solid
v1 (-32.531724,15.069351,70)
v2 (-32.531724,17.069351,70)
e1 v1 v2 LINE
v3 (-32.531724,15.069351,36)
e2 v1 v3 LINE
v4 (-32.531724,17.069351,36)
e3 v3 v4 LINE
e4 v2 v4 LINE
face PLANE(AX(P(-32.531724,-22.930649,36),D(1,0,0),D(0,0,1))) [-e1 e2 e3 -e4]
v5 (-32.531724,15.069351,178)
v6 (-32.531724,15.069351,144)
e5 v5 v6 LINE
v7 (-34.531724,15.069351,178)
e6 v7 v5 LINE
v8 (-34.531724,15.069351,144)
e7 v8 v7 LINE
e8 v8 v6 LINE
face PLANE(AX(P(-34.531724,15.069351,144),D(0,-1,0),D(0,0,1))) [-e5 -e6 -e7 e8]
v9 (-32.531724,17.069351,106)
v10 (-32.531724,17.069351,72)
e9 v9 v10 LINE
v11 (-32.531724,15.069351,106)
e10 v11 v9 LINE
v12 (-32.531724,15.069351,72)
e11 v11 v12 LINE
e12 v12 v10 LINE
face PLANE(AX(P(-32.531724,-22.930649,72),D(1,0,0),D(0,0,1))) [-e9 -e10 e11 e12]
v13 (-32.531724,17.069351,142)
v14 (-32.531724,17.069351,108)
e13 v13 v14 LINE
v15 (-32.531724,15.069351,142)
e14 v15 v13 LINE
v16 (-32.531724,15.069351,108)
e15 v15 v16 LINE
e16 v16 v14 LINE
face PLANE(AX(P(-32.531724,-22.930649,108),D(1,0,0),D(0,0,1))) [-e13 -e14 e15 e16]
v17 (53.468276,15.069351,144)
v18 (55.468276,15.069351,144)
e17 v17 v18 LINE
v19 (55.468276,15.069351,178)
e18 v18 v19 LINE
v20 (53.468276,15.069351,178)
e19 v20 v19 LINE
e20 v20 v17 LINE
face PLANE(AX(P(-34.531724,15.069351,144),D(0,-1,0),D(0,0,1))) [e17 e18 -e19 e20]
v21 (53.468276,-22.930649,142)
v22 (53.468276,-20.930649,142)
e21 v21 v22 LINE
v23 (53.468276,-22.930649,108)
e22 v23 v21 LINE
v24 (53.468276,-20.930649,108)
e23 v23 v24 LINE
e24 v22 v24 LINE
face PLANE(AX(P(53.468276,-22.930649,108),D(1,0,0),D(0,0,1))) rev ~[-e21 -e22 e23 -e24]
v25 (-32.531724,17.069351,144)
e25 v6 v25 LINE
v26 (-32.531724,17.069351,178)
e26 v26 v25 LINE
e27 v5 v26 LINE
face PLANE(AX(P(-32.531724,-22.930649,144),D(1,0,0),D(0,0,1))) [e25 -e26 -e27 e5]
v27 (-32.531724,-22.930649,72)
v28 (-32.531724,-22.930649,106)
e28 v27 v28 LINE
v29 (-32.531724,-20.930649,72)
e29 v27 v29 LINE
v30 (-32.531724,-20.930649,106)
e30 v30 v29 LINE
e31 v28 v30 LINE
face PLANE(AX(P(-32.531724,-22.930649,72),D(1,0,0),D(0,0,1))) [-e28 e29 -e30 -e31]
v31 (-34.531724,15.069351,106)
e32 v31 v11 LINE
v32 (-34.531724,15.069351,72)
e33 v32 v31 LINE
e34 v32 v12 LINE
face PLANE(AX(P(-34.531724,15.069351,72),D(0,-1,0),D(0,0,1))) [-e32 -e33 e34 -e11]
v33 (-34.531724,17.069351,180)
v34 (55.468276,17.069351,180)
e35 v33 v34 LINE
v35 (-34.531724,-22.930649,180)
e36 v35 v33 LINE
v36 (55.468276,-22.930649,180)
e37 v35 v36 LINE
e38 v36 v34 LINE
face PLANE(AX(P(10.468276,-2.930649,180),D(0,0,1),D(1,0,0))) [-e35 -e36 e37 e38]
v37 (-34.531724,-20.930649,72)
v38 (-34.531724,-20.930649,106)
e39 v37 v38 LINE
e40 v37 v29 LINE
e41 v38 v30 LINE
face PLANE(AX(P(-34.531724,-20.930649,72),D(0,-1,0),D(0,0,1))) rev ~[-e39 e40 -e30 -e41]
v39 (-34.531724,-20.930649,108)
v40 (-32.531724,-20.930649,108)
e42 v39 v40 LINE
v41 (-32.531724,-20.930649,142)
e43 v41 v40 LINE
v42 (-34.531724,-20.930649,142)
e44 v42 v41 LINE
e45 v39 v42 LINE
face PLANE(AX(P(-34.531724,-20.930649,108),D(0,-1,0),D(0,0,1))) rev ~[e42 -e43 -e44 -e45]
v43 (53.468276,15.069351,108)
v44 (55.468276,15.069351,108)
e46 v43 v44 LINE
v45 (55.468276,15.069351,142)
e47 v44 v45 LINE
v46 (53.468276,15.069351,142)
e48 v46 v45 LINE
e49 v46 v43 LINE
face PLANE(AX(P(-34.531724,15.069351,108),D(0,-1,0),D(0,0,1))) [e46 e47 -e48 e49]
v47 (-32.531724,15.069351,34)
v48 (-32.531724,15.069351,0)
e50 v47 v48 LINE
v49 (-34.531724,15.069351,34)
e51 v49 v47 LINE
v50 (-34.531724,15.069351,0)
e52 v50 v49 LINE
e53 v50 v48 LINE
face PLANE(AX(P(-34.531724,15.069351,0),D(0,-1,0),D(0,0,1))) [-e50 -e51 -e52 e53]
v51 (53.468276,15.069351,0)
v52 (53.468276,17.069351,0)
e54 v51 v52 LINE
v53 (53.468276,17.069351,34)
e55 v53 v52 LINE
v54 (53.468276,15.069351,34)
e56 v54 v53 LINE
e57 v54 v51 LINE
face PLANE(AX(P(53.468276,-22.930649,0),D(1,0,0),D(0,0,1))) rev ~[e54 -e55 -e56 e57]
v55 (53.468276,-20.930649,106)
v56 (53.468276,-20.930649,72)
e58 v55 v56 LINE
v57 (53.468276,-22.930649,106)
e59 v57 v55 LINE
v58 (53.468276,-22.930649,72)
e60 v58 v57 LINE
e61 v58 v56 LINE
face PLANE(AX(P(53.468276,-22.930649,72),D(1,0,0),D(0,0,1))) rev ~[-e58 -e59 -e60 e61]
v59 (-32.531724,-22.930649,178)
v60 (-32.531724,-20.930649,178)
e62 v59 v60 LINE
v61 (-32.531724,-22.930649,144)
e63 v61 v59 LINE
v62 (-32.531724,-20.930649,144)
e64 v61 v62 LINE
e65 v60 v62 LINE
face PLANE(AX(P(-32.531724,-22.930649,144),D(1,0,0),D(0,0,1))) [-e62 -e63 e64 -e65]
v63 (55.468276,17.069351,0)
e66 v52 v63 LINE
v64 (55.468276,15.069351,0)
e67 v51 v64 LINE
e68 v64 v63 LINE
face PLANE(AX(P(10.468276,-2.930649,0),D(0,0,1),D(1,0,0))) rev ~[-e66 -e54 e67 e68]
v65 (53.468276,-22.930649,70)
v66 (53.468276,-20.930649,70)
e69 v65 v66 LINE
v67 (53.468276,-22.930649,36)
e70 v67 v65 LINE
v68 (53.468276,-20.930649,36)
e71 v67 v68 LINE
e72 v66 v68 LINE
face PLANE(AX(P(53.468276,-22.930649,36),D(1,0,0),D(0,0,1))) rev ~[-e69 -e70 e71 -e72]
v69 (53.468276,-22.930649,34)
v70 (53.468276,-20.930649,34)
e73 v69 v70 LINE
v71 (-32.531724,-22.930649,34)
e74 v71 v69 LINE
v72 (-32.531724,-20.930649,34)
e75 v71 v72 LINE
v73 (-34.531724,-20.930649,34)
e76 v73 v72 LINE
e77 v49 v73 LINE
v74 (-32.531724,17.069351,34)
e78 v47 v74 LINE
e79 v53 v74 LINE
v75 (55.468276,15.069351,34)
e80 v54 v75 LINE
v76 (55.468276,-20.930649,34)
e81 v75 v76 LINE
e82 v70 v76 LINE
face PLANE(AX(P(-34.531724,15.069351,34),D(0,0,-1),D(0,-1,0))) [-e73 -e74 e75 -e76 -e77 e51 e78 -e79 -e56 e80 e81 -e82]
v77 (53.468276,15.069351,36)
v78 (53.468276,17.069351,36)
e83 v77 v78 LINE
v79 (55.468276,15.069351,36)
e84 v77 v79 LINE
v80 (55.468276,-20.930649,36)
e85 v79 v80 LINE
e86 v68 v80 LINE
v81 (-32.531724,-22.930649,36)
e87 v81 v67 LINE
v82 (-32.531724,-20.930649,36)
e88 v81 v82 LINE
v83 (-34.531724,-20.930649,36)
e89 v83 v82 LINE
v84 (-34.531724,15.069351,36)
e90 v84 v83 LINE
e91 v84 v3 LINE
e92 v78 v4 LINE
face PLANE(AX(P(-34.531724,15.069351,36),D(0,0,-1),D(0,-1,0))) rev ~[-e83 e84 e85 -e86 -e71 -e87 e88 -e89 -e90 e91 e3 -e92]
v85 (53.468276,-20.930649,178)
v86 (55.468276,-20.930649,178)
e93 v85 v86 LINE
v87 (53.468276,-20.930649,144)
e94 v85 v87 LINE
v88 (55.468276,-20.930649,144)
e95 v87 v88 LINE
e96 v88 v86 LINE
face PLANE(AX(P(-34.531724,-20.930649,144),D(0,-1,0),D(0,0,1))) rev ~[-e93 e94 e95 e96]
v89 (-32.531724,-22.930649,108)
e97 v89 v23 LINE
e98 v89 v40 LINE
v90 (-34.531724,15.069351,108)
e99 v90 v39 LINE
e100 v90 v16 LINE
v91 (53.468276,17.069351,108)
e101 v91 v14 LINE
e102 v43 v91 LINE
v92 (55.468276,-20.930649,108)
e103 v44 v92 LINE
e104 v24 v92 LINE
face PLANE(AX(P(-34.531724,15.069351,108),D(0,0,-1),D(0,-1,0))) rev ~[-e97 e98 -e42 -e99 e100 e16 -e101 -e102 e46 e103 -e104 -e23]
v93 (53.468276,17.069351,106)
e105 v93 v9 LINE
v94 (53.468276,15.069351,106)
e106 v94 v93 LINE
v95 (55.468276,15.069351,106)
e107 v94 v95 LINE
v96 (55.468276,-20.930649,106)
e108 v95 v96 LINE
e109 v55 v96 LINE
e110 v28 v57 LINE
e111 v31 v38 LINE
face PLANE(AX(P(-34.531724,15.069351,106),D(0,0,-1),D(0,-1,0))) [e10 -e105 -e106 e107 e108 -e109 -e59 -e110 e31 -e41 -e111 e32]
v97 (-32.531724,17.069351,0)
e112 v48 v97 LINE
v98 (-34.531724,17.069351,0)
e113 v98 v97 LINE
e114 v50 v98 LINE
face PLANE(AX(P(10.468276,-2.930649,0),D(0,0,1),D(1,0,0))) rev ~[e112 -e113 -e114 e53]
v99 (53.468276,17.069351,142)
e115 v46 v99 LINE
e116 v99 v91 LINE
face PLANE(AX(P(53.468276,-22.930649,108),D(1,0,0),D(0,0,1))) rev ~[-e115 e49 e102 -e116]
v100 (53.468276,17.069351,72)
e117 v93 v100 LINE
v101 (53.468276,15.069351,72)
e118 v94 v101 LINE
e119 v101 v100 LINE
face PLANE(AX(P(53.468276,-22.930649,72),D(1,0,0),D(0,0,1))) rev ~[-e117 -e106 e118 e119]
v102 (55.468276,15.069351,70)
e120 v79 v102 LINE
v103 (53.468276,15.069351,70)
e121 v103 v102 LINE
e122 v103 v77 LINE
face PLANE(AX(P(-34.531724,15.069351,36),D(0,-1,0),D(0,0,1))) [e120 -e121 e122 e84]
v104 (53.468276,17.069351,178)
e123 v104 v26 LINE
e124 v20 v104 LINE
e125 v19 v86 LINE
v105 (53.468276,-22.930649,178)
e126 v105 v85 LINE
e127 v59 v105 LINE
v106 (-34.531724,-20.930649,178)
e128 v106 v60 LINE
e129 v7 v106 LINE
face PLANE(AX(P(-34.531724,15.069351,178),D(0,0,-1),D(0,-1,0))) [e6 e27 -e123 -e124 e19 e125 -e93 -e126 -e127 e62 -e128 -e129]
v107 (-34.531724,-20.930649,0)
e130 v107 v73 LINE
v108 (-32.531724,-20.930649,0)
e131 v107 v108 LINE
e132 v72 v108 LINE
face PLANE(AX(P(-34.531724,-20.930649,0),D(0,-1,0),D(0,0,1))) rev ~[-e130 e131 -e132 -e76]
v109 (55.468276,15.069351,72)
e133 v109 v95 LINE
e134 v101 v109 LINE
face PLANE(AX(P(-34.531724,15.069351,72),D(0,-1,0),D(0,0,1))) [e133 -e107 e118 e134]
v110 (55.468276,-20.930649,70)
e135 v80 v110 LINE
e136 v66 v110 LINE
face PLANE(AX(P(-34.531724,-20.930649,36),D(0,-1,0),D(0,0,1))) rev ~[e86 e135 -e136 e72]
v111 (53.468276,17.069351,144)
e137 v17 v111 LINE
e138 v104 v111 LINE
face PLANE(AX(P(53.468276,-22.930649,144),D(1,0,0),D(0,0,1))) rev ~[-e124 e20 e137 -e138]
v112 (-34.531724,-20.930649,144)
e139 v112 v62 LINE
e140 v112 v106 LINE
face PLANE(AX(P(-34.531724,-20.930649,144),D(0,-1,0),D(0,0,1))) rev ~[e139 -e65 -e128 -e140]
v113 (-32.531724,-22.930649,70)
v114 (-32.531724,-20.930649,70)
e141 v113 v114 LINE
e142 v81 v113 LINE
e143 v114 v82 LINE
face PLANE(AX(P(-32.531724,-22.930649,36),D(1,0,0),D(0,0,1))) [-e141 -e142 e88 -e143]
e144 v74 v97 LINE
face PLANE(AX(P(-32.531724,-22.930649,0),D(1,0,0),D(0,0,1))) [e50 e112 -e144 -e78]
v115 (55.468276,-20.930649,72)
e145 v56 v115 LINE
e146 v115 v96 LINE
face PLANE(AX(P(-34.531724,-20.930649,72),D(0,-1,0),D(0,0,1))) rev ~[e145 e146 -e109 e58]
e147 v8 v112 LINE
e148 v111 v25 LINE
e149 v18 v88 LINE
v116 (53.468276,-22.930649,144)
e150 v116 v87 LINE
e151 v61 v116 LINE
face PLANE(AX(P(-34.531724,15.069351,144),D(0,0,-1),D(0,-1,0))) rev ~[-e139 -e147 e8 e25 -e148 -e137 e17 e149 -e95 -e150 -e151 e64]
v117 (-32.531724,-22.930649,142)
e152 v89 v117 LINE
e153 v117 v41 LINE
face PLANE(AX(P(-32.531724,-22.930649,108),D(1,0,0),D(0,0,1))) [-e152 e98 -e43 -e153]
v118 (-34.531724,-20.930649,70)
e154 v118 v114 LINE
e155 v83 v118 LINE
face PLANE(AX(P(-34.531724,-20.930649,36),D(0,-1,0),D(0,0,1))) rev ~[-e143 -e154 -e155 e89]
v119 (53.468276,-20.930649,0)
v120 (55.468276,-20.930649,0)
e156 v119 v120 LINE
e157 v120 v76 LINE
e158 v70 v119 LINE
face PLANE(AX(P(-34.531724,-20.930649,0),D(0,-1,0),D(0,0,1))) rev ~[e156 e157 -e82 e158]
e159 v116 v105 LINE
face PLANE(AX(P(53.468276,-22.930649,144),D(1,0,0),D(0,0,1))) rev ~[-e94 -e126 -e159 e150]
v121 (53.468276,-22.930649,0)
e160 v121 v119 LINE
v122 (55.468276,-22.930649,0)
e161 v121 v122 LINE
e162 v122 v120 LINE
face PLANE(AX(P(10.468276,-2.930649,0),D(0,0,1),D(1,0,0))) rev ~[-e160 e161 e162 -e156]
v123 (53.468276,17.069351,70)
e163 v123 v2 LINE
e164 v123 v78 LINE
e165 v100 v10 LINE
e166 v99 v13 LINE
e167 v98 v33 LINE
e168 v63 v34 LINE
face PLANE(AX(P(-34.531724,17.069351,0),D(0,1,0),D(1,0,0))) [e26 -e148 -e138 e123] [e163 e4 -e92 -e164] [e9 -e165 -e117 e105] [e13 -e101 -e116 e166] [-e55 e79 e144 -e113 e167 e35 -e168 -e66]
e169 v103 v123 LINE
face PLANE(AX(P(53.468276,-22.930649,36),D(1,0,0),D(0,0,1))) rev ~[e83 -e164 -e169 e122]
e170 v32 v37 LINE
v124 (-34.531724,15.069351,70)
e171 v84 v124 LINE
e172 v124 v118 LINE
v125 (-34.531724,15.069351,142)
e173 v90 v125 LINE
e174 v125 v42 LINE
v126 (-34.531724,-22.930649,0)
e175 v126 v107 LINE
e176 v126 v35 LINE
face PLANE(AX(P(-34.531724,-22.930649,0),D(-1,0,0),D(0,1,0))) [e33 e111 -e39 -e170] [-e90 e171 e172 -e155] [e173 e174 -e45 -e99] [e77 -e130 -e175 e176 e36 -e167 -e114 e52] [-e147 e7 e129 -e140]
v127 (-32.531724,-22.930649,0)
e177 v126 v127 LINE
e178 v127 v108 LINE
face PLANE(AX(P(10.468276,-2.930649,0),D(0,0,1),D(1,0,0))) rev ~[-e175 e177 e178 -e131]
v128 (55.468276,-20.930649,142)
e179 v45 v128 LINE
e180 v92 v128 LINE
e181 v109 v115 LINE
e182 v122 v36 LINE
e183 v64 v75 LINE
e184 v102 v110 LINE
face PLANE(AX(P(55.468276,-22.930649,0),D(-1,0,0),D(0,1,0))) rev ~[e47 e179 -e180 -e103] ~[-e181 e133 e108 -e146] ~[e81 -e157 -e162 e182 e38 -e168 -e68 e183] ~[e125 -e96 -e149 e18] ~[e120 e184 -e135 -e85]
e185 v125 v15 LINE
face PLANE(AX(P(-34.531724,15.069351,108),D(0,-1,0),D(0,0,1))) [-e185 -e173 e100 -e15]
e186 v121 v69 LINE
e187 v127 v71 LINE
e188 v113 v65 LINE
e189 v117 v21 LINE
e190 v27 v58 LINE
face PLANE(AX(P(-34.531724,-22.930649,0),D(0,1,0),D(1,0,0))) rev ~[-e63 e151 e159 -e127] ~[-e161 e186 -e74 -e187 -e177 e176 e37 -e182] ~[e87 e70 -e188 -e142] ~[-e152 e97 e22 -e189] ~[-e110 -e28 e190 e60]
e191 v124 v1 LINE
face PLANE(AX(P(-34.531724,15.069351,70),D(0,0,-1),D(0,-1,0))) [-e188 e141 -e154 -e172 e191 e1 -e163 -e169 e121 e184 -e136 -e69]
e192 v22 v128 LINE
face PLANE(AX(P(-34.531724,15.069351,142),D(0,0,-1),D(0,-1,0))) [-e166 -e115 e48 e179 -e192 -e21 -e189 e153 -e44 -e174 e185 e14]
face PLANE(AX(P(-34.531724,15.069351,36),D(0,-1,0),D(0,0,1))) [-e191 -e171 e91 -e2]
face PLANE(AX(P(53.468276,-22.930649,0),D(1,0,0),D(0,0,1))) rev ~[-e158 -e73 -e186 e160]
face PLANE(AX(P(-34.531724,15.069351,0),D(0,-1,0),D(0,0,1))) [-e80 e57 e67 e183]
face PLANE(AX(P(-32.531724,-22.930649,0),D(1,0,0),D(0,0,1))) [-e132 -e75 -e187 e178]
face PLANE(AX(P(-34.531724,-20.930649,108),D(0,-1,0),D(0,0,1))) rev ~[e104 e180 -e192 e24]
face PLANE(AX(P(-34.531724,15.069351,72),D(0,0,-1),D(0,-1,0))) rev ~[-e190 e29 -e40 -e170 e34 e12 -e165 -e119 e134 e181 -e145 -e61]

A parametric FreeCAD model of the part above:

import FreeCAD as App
import Part
import Sketcher

V = App.Vector


def add_polygon(sketch, points):
    """Adds a closed chain of lines whose ends are joined by coincident constraints."""
    first, n = sketch.GeometryCount, len(points)
    for a, b in zip(points, points[1:] + points[:1]):
        sketch.addGeometry(Part.LineSegment(App.Vector(*a, 0), App.Vector(*b, 0)), False)
    for i in range(n):
        sketch.addConstraint(Sketcher.Constraint("Coincident", first + i, 2, first + (i + 1) % n, 1))

doc = App.newDocument("Part")
body = doc.addObject("PartDesign::Body", "Body")

# Sketch on XY plane
sketch1 = body.newObject("Sketcher::SketchObject", "Sketch")
sketch1.AttachmentSupport = (doc.getObject("XY_Plane"), [""])
sketch1.MapMode = "FlatFace"
add_polygon(sketch1, [(-35, 17), (-35, -23), (55, -23), (55, 17)])  # lines 0-3
sketch1.addConstraint(Sketcher.Constraint("Vertical", 0))
sketch1.addConstraint(Sketcher.Constraint("Horizontal", 1))
sketch1.addConstraint(Sketcher.Constraint("Vertical", 2))
sketch1.addConstraint(Sketcher.Constraint("Horizontal", 3))
sketch1.addConstraint(Sketcher.Constraint("DistanceX", 1, 1, 1, 2, 90.0))
sketch1.addConstraint(Sketcher.Constraint("DistanceY", 0, 2, 0, 1, 40.0))
sketch1.addConstraint(Sketcher.Constraint("DistanceY", 0, 2, -1, 1, 22.930649))
sketch1.addConstraint(Sketcher.Constraint("DistanceX", 0, 2, -1, 1, 34.531724))
pad1 = body.newObject("PartDesign::Pad", "Pad")
pad1.Profile = sketch1
pad1.Length = 180

# Sketch on XZ plane
sketch2 = body.newObject("Sketcher::SketchObject", "Sketch001")
sketch2.AttachmentSupport = (doc.getObject("XZ_Plane"), [""])
sketch2.MapMode = "FlatFace"
sketch2.AttachmentOffset = App.Placement(V(0, 0, 22.930649), App.Rotation())
add_polygon(sketch2, [(-33, 178), (-33, 144), (53, 144), (53, 178)])  # lines 0-3
add_polygon(sketch2, [(-33, 142), (-33, 108), (53, 108), (53, 142)])  # lines 4-7
add_polygon(sketch2, [(-33, 106), (-33, 72), (53, 72), (53, 106)])  # lines 8-11
add_polygon(sketch2, [(-33, 70), (-33, 36), (53, 36), (53, 70)])  # lines 12-15
add_polygon(sketch2, [(-33, 34), (-33, 0), (53, 0), (53, 34)])  # lines 16-19
sketch2.addConstraint(Sketcher.Constraint("Vertical", 0))
sketch2.addConstraint(Sketcher.Constraint("Horizontal", 1))
sketch2.addConstraint(Sketcher.Constraint("Vertical", 2))
sketch2.addConstraint(Sketcher.Constraint("Horizontal", 3))
sketch2.addConstraint(Sketcher.Constraint("Vertical", 4))
sketch2.addConstraint(Sketcher.Constraint("Horizontal", 5))
sketch2.addConstraint(Sketcher.Constraint("Vertical", 6))
sketch2.addConstraint(Sketcher.Constraint("Horizontal", 7))
sketch2.addConstraint(Sketcher.Constraint("Vertical", 8))
sketch2.addConstraint(Sketcher.Constraint("Horizontal", 9))
sketch2.addConstraint(Sketcher.Constraint("Vertical", 10))
sketch2.addConstraint(Sketcher.Constraint("Horizontal", 11))
sketch2.addConstraint(Sketcher.Constraint("Vertical", 12))
sketch2.addConstraint(Sketcher.Constraint("Horizontal", 13))
sketch2.addConstraint(Sketcher.Constraint("Vertical", 14))
sketch2.addConstraint(Sketcher.Constraint("Horizontal", 15))
sketch2.addConstraint(Sketcher.Constraint("Vertical", 16))
sketch2.addConstraint(Sketcher.Constraint("Horizontal", 17))
sketch2.addConstraint(Sketcher.Constraint("Vertical", 18))
sketch2.addConstraint(Sketcher.Constraint("Horizontal", 19))
sketch2.addConstraint(Sketcher.Constraint("PointOnObject", 16, 2, -1))
sketch2.addConstraint(Sketcher.Constraint("Vertical", 3, 2, 4, 2))
sketch2.addConstraint(Sketcher.Constraint("Vertical", 2, 2, 5, 2))
sketch2.addConstraint(Sketcher.Constraint("Vertical", 7, 2, 8, 2))
sketch2.addConstraint(Sketcher.Constraint("Vertical", 6, 2, 9, 2))
sketch2.addConstraint(Sketcher.Constraint("Vertical", 11, 2, 12, 2))
sketch2.addConstraint(Sketcher.Constraint("Vertical", 10, 2, 13, 2))
sketch2.addConstraint(Sketcher.Constraint("Vertical", 15, 2, 16, 2))
sketch2.addConstraint(Sketcher.Constraint("Vertical", 14, 2, 17, 2))
sketch2.addConstraint(Sketcher.Constraint("Equal", 2, 4))
sketch2.addConstraint(Sketcher.Constraint("Equal", 6, 8))
sketch2.addConstraint(Sketcher.Constraint("Equal", 10, 12))
sketch2.addConstraint(Sketcher.Constraint("Equal", 14, 16))
sketch2.addConstraint(Sketcher.Constraint("DistanceX", 1, 1, 1, 2, 86.0))
sketch2.addConstraint(Sketcher.Constraint("DistanceY", 0, 2, 0, 1, 34.0))
sketch2.addConstraint(Sketcher.Constraint("DistanceY", -1, 1, 0, 2, 144.0))
sketch2.addConstraint(Sketcher.Constraint("DistanceY", -1, 1, 4, 2, 108.0))
sketch2.addConstraint(Sketcher.Constraint("DistanceY", -1, 1, 8, 2, 72.0))
sketch2.addConstraint(Sketcher.Constraint("DistanceY", -1, 1, 12, 2, 36.0))
sketch2.addConstraint(Sketcher.Constraint("DistanceX", 0, 2, -1, 1, 32.531724))
pocket1 = body.newObject("PartDesign::Pocket", "Pocket")
pocket1.Profile = sketch2
pocket1.Type = "ThroughAll"

# Sketch on YZ plane
sketch3 = body.newObject("Sketcher::SketchObject", "Sketch002")
sketch3.AttachmentSupport = (doc.getObject("YZ_Plane"), [""])
sketch3.MapMode = "FlatFace"
sketch3.AttachmentOffset = App.Placement(V(0, 0, -34.531724), App.Rotation())
add_polygon(sketch3, [(15, 178), (15, 144), (-21, 144), (-21, 178)])  # lines 0-3
add_polygon(sketch3, [(15, 142), (15, 108), (-21, 108), (-21, 142)])  # lines 4-7
add_polygon(sketch3, [(15, 106), (15, 72), (-21, 72), (-21, 106)])  # lines 8-11
add_polygon(sketch3, [(15, 70), (15, 36), (-21, 36), (-21, 70)])  # lines 12-15
add_polygon(sketch3, [(15, 34), (15, 0), (-21, 0), (-21, 34)])  # lines 16-19
sketch3.addConstraint(Sketcher.Constraint("Vertical", 0))
sketch3.addConstraint(Sketcher.Constraint("Horizontal", 1))
sketch3.addConstraint(Sketcher.Constraint("Vertical", 2))
sketch3.addConstraint(Sketcher.Constraint("Horizontal", 3))
sketch3.addConstraint(Sketcher.Constraint("Vertical", 4))
sketch3.addConstraint(Sketcher.Constraint("Horizontal", 5))
sketch3.addConstraint(Sketcher.Constraint("Vertical", 6))
sketch3.addConstraint(Sketcher.Constraint("Horizontal", 7))
sketch3.addConstraint(Sketcher.Constraint("Vertical", 8))
sketch3.addConstraint(Sketcher.Constraint("Horizontal", 9))
sketch3.addConstraint(Sketcher.Constraint("Vertical", 10))
sketch3.addConstraint(Sketcher.Constraint("Horizontal", 11))
sketch3.addConstraint(Sketcher.Constraint("Vertical", 12))
sketch3.addConstraint(Sketcher.Constraint("Horizontal", 13))
sketch3.addConstraint(Sketcher.Constraint("Vertical", 14))
sketch3.addConstraint(Sketcher.Constraint("Horizontal", 15))
sketch3.addConstraint(Sketcher.Constraint("Vertical", 16))
sketch3.addConstraint(Sketcher.Constraint("Horizontal", 17))
sketch3.addConstraint(Sketcher.Constraint("Vertical", 18))
sketch3.addConstraint(Sketcher.Constraint("Horizontal", 19))
sketch3.addConstraint(Sketcher.Constraint("PointOnObject", 16, 2, -1))
sketch3.addConstraint(Sketcher.Constraint("Vertical", 3, 2, 4, 2))
sketch3.addConstraint(Sketcher.Constraint("Vertical", 2, 2, 5, 2))
sketch3.addConstraint(Sketcher.Constraint("Vertical", 7, 2, 8, 2))
sketch3.addConstraint(Sketcher.Constraint("Vertical", 6, 2, 9, 2))
sketch3.addConstraint(Sketcher.Constraint("Vertical", 11, 2, 12, 2))
sketch3.addConstraint(Sketcher.Constraint("Vertical", 10, 2, 13, 2))
sketch3.addConstraint(Sketcher.Constraint("Vertical", 15, 2, 16, 2))
sketch3.addConstraint(Sketcher.Constraint("Vertical", 14, 2, 17, 2))
sketch3.addConstraint(Sketcher.Constraint("Equal", 2, 4))
sketch3.addConstraint(Sketcher.Constraint("Equal", 6, 8))
sketch3.addConstraint(Sketcher.Constraint("Equal", 10, 12))
sketch3.addConstraint(Sketcher.Constraint("Equal", 14, 16))
sketch3.addConstraint(Sketcher.Constraint("DistanceX", 1, 2, 1, 1, 36.0))
sketch3.addConstraint(Sketcher.Constraint("DistanceY", 0, 2, 0, 1, 34.0))
sketch3.addConstraint(Sketcher.Constraint("DistanceY", -1, 1, 0, 2, 144.0))
sketch3.addConstraint(Sketcher.Constraint("DistanceY", -1, 1, 4, 2, 108.0))
sketch3.addConstraint(Sketcher.Constraint("DistanceY", -1, 1, 8, 2, 72.0))
sketch3.addConstraint(Sketcher.Constraint("DistanceY", -1, 1, 12, 2, 36.0))
sketch3.addConstraint(Sketcher.Constraint("DistanceX", -1, 1, 0, 2, 15.069351))
pocket2 = body.newObject("PartDesign::Pocket", "Pocket001")
pocket2.Profile = sketch3
pocket2.Type = "ThroughAll"
pocket2.Reversed = True

doc.recompute()
